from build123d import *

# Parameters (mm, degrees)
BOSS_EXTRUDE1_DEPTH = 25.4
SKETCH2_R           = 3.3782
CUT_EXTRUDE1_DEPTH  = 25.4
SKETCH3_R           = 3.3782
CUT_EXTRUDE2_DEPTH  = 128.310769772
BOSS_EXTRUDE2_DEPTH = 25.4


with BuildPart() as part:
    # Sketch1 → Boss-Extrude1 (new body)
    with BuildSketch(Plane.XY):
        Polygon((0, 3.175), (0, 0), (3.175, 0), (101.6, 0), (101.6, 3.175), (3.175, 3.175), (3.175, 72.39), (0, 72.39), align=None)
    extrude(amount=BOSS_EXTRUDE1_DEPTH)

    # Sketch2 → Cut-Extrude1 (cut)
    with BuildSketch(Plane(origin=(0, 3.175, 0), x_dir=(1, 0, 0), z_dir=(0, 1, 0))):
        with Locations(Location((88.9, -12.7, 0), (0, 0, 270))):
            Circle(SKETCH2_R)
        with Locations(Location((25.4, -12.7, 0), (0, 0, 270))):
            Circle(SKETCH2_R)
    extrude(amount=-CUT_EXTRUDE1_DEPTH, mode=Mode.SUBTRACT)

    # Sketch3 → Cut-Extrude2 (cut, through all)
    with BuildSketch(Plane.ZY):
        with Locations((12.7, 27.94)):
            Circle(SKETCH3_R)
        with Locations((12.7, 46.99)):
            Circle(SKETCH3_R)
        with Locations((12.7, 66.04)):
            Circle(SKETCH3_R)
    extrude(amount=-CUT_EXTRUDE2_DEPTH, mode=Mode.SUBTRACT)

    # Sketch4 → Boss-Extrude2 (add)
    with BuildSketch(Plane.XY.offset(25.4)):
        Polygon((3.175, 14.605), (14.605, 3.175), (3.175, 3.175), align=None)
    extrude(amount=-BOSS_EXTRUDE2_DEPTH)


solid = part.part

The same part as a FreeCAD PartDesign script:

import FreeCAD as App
import Part
import Sketcher
from FreeCAD import Vector
Q = App.Units.Quantity

doc = App.newDocument("Part")
body = doc.addObject("PartDesign::Body", "Body")

# Sketch on XY plane
sketch1 = body.newObject("Sketcher::SketchObject", "Sketch")
sketch1.AttachmentSupport = (doc.getObject("XY_Plane"), [""])
sketch1.MapMode = "FlatFace"
sketch1.addGeometry(Part.LineSegment(Vector(0, 0, 0), Vector(101.6, 0, 0)), False)
sketch1.addGeometry(Part.LineSegment(Vector(101.6, 0, 0), Vector(101.6, 3.2, 0)), False)
sketch1.addGeometry(Part.LineSegment(Vector(101.6, 3.2, 0), Vector(3.2, 3.2, 0)), False)
sketch1.addGeometry(Part.LineSegment(Vector(3.2, 3.2, 0), Vector(3.2, 72.4, 0)), False)
sketch1.addGeometry(Part.LineSegment(Vector(3.2, 72.4, 0), Vector(0, 72.4, 0)), False)
sketch1.addGeometry(Part.LineSegment(Vector(0, 72.4, 0), Vector(0, 0, 0)), False)
sketch1.addConstraint(Sketcher.Constraint("Coincident", 0, 2, 1, 1))
sketch1.addConstraint(Sketcher.Constraint("Coincident", 1, 2, 2, 1))
sketch1.addConstraint(Sketcher.Constraint("Coincident", 2, 2, 3, 1))
sketch1.addConstraint(Sketcher.Constraint("Coincident", 3, 2, 4, 1))
sketch1.addConstraint(Sketcher.Constraint("Coincident", 4, 2, 5, 1))
sketch1.addConstraint(Sketcher.Constraint("Coincident", 5, 2, 0, 1))
sketch1.addConstraint(Sketcher.Constraint("Horizontal", 0))
sketch1.addConstraint(Sketcher.Constraint("Vertical", 1))
sketch1.addConstraint(Sketcher.Constraint("Horizontal", 2))
sketch1.addConstraint(Sketcher.Constraint("Vertical", 3))
sketch1.addConstraint(Sketcher.Constraint("Horizontal", 4))
sketch1.addConstraint(Sketcher.Constraint("Vertical", 5))
sketch1.addConstraint(Sketcher.Constraint("Coincident", 5, 2, -1, 1))
sketch1.addConstraint(Sketcher.Constraint("Equal", 4, 1))
sketch1.addConstraint(Sketcher.Constraint("DistanceX", 0, 1, 0, 2, Q("4 in")))
sketch1.addConstraint(Sketcher.Constraint("DistanceY", 5, 2, 5, 1, Q("2.85 in")))
sketch1.addConstraint(Sketcher.Constraint("DistanceX", 2, 2, 2, 1, Q("3.875 in")))
pad1 = body.newObject("PartDesign::Pad", "Pad")
pad1.Profile = sketch1
pad1.Length = Q("1 in")

# Sketch on XZ plane
sketch2 = body.newObject("Sketcher::SketchObject", "Sketch001")
sketch2.AttachmentSupport = (doc.getObject("XZ_Plane"), [""])
sketch2.MapMode = "FlatFace"
sketch2.AttachmentOffset = App.Placement(Vector(0, 0, -0.125 * 25.4), App.Rotation())
sketch2.addGeometry(Part.Circle(Vector(88.9, 12.7, 0), Vector(0, 0, 1), 3.4), False)
sketch2.addGeometry(Part.Circle(Vector(25.4, 12.7, 0), Vector(0, 0, 1), 3.4), False)
sketch2.addConstraint(Sketcher.Constraint("Equal", 0, 1))
sketch2.addConstraint(Sketcher.Constraint("Horizontal", 0, 3, 1, 3))
sketch2.addConstraint(Sketcher.Constraint("Diameter", 0, Q("0.266 in")))
sketch2.addConstraint(Sketcher.Constraint("DistanceX", -1, 1, 1, 3, Q("1 in")))
sketch2.addConstraint(Sketcher.Constraint("DistanceX", -1, 1, 0, 3, Q("3.5 in")))
sketch2.addConstraint(Sketcher.Constraint("DistanceY", -1, 1, 0, 3, Q("0.5 in")))
pocket1 = body.newObject("PartDesign::Pocket", "Pocket")
pocket1.Profile = sketch2
pocket1.Length = Q("1 in")
pocket1.Reversed = True

# Sketch on YZ plane
sketch3 = body.newObject("Sketcher::SketchObject", "Sketch002")
sketch3.AttachmentSupport = (doc.getObject("YZ_Plane"), [""])
sketch3.MapMode = "FlatFace"
sketch3.addGeometry(Part.Circle(Vector(27.9, 12.7, 0), Vector(0, 0, 1), 3.4), False)
sketch3.addGeometry(Part.Circle(Vector(47, 12.7, 0), Vector(0, 0, 1), 3.4), False)
sketch3.addGeometry(Part.Circle(Vector(66, 12.7, 0), Vector(0, 0, 1), 3.4), False)
sketch3.addConstraint(Sketcher.Constraint("Equal", 0, 1))
sketch3.addConstraint(Sketcher.Constraint("Equal", 1, 2))
sketch3.addConstraint(Sketcher.Constraint("Horizontal", 0, 3, 1, 3))
sketch3.addConstraint(Sketcher.Constraint("Horizontal", 1, 3, 2, 3))
sketch3.addConstraint(Sketcher.Constraint("Diameter", 0, Q("0.266 in")))
sketch3.addConstraint(Sketcher.Constraint("DistanceX", -1, 1, 0, 3, Q("1.1 in")))
sketch3.addConstraint(Sketcher.Constraint("DistanceY", -1, 1, 0, 3, Q("0.5 in")))
sketch3.addConstraint(Sketcher.Constraint("DistanceX", -1, 1, 2, 3, Q("2.6 in")))
sketch3.addConstraint(Sketcher.Constraint("DistanceX", -1, 1, 1, 3, Q("1.85 in")))
pocket2 = body.newObject("PartDesign::Pocket", "Pocket001")
pocket2.Profile = sketch3
pocket2.Type = "ThroughAll"
pocket2.Reversed = True

# Sketch on XY plane
sketch4 = body.newObject("Sketcher::SketchObject", "Sketch003")
sketch4.AttachmentSupport = (doc.getObject("XY_Plane"), [""])
sketch4.MapMode = "FlatFace"
sketch4.AttachmentOffset = App.Placement(Vector(0, 0, 1 * 25.4), App.Rotation())
sketch4.addGeometry(Part.LineSegment(Vector(15, 3, 0), Vector(3, 15, 0)), False)
sketch4.addGeometry(Part.LineSegment(Vector(3, 15, 0), Vector(3, 3, 0)), False)
sketch4.addGeometry(Part.LineSegment(Vector(3, 3, 0), Vector(15, 3, 0)), False)
sketch4.addConstraint(Sketcher.Constraint("Coincident", 0, 2, 1, 1))
sketch4.addConstraint(Sketcher.Constraint("Coincident", 1, 2, 2, 1))
sketch4.addConstraint(Sketcher.Constraint("Coincident", 2, 2, 0, 1))
sketch4.addConstraint(Sketcher.Constraint("Vertical", 1))
sketch4.addConstraint(Sketcher.Constraint("Horizontal", 2))
sketch4.addConstraint(Sketcher.Constraint("Equal", 2, 1))
sketch4.addConstraint(Sketcher.Constraint("DistanceX", 2, 1, 2, 2, Q("0.45 in")))
sketch4.addConstraint(Sketcher.Constraint("DistanceX", -1, 1, 0, 2, Q("0.125 in")))
sketch4.addConstraint(Sketcher.Constraint("DistanceY", -1, 1, 0, 2, Q("0.575 in")))
pad2 = body.newObject("PartDesign::Pad", "Pad001")
pad2.Profile = sketch4
pad2.Length = Q("1 in")
pad2.Reversed = True

doc.recompute()
